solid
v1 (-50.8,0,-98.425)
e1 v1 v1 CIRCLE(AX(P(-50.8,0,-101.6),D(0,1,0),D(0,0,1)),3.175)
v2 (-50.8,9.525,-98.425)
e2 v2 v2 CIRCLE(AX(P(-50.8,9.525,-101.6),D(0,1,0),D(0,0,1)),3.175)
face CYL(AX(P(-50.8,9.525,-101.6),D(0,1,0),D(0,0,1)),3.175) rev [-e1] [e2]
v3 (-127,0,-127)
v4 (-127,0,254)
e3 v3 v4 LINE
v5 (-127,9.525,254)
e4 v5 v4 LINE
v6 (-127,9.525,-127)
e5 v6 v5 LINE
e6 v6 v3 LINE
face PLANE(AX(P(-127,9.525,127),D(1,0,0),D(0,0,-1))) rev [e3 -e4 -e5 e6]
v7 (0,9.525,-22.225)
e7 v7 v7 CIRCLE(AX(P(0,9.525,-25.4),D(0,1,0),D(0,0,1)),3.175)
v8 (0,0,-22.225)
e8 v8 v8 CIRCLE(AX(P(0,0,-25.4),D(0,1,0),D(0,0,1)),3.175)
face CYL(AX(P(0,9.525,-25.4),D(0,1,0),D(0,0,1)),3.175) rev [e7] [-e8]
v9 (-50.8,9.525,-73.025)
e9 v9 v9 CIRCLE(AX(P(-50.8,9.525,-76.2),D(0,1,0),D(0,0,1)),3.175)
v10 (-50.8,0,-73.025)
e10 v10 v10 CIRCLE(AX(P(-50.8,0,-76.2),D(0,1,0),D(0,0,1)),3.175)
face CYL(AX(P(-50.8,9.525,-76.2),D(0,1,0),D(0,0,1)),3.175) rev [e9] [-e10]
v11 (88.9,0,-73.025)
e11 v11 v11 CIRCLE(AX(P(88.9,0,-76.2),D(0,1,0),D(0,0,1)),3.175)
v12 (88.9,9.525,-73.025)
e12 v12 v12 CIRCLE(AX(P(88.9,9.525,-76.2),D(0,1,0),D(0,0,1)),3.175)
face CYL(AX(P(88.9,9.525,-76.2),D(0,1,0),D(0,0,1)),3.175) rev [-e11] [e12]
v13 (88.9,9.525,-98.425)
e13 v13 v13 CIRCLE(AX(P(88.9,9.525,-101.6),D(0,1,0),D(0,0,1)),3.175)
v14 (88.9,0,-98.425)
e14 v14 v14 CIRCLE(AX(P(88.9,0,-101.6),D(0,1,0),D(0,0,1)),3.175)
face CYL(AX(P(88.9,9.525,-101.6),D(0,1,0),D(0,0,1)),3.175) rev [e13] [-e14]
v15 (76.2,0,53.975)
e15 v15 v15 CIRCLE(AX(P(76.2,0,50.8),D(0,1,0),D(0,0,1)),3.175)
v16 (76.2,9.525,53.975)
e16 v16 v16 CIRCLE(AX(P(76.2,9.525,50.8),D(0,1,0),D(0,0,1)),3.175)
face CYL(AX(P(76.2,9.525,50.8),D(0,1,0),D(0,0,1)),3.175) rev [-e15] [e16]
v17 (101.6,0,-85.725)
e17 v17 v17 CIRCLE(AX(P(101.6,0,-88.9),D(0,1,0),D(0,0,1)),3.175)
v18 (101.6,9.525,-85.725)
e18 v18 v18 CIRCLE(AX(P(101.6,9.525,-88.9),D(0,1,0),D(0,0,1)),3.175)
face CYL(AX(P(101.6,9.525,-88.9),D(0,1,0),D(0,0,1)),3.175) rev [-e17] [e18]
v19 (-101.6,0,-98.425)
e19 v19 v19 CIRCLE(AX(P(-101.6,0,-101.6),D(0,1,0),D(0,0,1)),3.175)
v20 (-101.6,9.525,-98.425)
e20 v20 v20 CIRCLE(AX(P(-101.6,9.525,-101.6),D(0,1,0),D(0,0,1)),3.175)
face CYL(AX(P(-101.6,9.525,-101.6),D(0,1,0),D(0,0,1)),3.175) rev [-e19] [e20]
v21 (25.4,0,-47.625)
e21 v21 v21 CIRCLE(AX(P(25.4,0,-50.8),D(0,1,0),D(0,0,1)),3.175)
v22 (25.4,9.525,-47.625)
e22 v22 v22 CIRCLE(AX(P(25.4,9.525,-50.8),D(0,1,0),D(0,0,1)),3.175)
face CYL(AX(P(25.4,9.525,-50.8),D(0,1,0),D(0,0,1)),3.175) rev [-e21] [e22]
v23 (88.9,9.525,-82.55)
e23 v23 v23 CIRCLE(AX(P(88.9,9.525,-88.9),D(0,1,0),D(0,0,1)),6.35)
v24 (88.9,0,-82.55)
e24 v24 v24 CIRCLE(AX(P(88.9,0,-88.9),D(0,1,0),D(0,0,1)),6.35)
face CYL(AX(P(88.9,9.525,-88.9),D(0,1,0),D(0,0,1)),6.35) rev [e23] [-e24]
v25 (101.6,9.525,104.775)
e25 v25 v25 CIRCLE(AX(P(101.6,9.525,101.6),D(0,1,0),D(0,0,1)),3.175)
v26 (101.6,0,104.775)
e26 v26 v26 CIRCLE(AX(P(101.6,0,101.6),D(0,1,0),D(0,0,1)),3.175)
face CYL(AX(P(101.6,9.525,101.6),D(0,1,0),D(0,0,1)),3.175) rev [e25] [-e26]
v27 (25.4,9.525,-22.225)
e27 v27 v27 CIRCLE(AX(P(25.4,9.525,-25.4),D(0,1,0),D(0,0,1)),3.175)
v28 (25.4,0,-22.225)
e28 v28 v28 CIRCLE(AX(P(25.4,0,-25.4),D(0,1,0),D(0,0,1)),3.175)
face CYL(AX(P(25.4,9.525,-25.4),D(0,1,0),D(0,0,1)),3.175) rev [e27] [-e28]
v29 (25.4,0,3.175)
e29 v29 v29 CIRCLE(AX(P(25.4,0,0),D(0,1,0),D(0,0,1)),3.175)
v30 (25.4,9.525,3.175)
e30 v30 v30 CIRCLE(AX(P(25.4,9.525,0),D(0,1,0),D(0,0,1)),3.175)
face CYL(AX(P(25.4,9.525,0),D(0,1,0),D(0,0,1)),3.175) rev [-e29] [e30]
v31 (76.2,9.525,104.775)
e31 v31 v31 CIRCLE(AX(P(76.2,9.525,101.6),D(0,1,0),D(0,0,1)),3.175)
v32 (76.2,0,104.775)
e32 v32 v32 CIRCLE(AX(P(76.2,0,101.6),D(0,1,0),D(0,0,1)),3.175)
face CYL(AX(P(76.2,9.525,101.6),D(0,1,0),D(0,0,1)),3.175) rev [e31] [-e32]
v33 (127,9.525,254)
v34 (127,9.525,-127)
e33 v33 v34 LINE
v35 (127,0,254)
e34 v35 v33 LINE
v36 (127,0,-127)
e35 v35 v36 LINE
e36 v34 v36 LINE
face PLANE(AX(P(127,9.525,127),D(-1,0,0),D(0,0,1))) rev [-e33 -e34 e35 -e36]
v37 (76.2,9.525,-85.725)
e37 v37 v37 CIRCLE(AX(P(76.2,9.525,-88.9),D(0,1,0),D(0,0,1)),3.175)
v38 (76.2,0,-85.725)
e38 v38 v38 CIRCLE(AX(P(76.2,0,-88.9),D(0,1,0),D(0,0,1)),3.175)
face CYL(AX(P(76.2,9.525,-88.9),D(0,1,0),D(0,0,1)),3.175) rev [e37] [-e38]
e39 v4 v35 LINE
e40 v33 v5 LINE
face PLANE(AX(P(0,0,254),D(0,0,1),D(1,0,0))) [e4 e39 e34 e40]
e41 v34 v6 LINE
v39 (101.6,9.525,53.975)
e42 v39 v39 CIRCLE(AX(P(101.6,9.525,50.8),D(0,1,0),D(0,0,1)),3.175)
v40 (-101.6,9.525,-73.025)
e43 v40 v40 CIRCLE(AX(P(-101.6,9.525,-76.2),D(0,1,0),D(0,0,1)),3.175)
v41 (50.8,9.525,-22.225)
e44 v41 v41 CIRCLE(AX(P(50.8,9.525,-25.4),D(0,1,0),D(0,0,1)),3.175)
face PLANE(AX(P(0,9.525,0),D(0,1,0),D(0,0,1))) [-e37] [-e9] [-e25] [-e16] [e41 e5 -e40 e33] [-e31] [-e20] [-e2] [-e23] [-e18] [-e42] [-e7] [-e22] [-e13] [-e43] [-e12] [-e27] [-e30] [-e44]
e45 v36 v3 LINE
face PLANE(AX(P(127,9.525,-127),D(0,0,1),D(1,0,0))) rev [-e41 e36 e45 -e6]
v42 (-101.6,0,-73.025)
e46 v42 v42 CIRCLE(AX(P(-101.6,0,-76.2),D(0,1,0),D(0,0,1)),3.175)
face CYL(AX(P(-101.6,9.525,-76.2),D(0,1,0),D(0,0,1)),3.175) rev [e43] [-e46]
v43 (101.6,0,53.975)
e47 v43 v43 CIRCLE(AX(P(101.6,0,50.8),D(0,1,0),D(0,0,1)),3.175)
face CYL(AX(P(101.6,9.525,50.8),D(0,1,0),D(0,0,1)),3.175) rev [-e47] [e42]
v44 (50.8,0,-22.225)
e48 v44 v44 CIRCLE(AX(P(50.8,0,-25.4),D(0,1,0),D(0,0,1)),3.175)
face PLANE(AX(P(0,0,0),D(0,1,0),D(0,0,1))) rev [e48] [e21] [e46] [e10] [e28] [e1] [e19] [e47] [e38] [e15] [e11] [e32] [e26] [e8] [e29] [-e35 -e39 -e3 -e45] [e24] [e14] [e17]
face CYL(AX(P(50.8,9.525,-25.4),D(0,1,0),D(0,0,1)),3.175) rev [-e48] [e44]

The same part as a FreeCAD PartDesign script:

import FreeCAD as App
import Part
import Sketcher
Q = App.Units.Quantity

doc = App.newDocument("Part")
params = doc.addObject("Spreadsheet::Sheet", "Params")
for row, (alias, value) in enumerate([
    ("sketch1_width", "10 in"),
    ("pad1_length", "0.375 in"),
    ("sketch2_diameter", "0.25 in"),
    ("hole_diameter", "0.25 in"),
    ("sketch3_diameter", "0.5 in"),
    ("hole2_diameter", "0.5 in"),
    ("sketch4_width", "10 in"),
    ("sketch4_height", "0.375 in"),
    ("pad2_length", "5 in"),
], start=1):
    params.set(f"A{row}", alias)
    params.set(f"B{row}", "=" + value)
    params.setAlias(f"B{row}", alias)

body = doc.addObject("PartDesign::Body", "Body")

sketch1 = body.newObject("Sketcher::SketchObject", "Sketch")
sketch1.AttachmentSupport = (doc.getObject("XZ_Plane"), [""])
sketch1.MapMode = "FlatFace"
sketch1.addGeometry(Part.LineSegment(App.Vector(-127, -127, 0), App.Vector(-127, 127, 0)), False)
sketch1.addGeometry(Part.LineSegment(App.Vector(-127, 127, 0), App.Vector(127, 127, 0)), False)
sketch1.addGeometry(Part.LineSegment(App.Vector(127, 127, 0), App.Vector(127, -127, 0)), False)
sketch1.addGeometry(Part.LineSegment(App.Vector(127, -127, 0), App.Vector(-127, -127, 0)), False)
sketch1.addConstraint(Sketcher.Constraint("Coincident", 0, 2, 1, 1))
sketch1.addConstraint(Sketcher.Constraint("Coincident", 1, 2, 2, 1))
sketch1.addConstraint(Sketcher.Constraint("Coincident", 2, 2, 3, 1))
sketch1.addConstraint(Sketcher.Constraint("Coincident", 3, 2, 0, 1))
sketch1.addConstraint(Sketcher.Constraint("Vertical", 0))
sketch1.addConstraint(Sketcher.Constraint("Horizontal", 1))
sketch1.addConstraint(Sketcher.Constraint("Vertical", 2))
sketch1.addConstraint(Sketcher.Constraint("Horizontal", 3))
sketch1.addConstraint(Sketcher.Constraint("Symmetric", 0, 2, 2, 2, -1, 1))
sketch1.addConstraint(Sketcher.Constraint("Equal", 3, 0))
sketch1.addConstraint(Sketcher.Constraint("DistanceX", 1, 1, 1, 2, Q("10 in")))
sketch1.setExpression("Constraints[10]", "Params.sketch1_width")
pad1 = body.newObject("PartDesign::Pad", "Pad")
pad1.Profile = sketch1
pad1.setExpression("Length", "Params.pad1_length")
pad1.Reversed = True

sketch2 = body.newObject("Sketcher::SketchObject", "Sketch001")
sketch2.AttachmentSupport = (doc.getObject("XZ_Plane"), [""])
sketch2.MapMode = "FlatFace"
sketch2.AttachmentOffset = App.Placement(App.Vector(0, 0, -0.375 * 25.4), App.Rotation())
sketch2.addGeometry(Part.Circle(App.Vector(-50.8, -76.2, 0), App.Vector(0, 0, 1), 3.2), False)
sketch2.addGeometry(Part.Circle(App.Vector(-50.8, -101.6, 0), App.Vector(0, 0, 1), 3.2), False)
sketch2.addGeometry(Part.Circle(App.Vector(76.2, 50.8, 0), App.Vector(0, 0, 1), 3.2), False)
sketch2.addGeometry(Part.Circle(App.Vector(101.6, 50.8, 0), App.Vector(0, 0, 1), 3.2), False)
sketch2.addGeometry(Part.Circle(App.Vector(76.2, 101.6, 0), App.Vector(0, 0, 1), 3.2), False)
sketch2.addGeometry(Part.Circle(App.Vector(101.6, 101.6, 0), App.Vector(0, 0, 1), 3.2), False)
sketch2.addGeometry(Part.Circle(App.Vector(-101.6, -76.2, 0), App.Vector(0, 0, 1), 3.2), False)
sketch2.addGeometry(Part.Circle(App.Vector(-101.6, -101.6, 0), App.Vector(0, 0, 1), 3.2), False)
sketch2.addGeometry(Part.Circle(App.Vector(25.4, -50.8, 0), App.Vector(0, 0, 1), 3.2), False)
sketch2.addGeometry(Part.Circle(App.Vector(50.8, -25.4, 0), App.Vector(0, 0, 1), 3.2), False)
sketch2.addGeometry(Part.Circle(App.Vector(25.4, 0, 0), App.Vector(0, 0, 1), 3.2), False)
sketch2.addGeometry(Part.Circle(App.Vector(0, -25.4, 0), App.Vector(0, 0, 1), 3.2), False)
sketch2.addGeometry(Part.Circle(App.Vector(25.4, -25.4, 0), App.Vector(0, 0, 1), 3.2), False)
sketch2.addGeometry(Part.Circle(App.Vector(88.9, -76.2, 0), App.Vector(0, 0, 1), 3.2), False)
sketch2.addGeometry(Part.Circle(App.Vector(76.2, -88.9, 0), App.Vector(0, 0, 1), 3.2), False)
sketch2.addGeometry(Part.Circle(App.Vector(88.9, -101.6, 0), App.Vector(0, 0, 1), 3.2), False)
sketch2.addGeometry(Part.Circle(App.Vector(101.6, -88.9, 0), App.Vector(0, 0, 1), 3.2), False)
sketch2.addConstraint(Sketcher.Constraint("Equal", 0, 1))
sketch2.addConstraint(Sketcher.Constraint("Equal", 1, 2))
sketch2.addConstraint(Sketcher.Constraint("Equal", 2, 3))
sketch2.addConstraint(Sketcher.Constraint("Equal", 3, 4))
sketch2.addConstraint(Sketcher.Constraint("Equal", 4, 5))
sketch2.addConstraint(Sketcher.Constraint("Equal", 5, 6))
sketch2.addConstraint(Sketcher.Constraint("Equal", 6, 7))
sketch2.addConstraint(Sketcher.Constraint("Equal", 7, 8))
sketch2.addConstraint(Sketcher.Constraint("Equal", 8, 9))
sketch2.addConstraint(Sketcher.Constraint("Equal", 9, 10))
sketch2.addConstraint(Sketcher.Constraint("Equal", 10, 11))
sketch2.addConstraint(Sketcher.Constraint("Equal", 11, 12))
sketch2.addConstraint(Sketcher.Constraint("Equal", 12, 13))
sketch2.addConstraint(Sketcher.Constraint("Equal", 13, 14))
sketch2.addConstraint(Sketcher.Constraint("Equal", 14, 15))
sketch2.addConstraint(Sketcher.Constraint("Equal", 15, 16))
sketch2.addConstraint(Sketcher.Constraint("Symmetric", 5, 3, 7, 3, -1, 1))
sketch2.addConstraint(Sketcher.Constraint("PointOnObject", 10, 3, -1))
sketch2.addConstraint(Sketcher.Constraint("PointOnObject", 11, 3, -2))
sketch2.addConstraint(Sketcher.Constraint("Horizontal", 2, 3, 3, 3))
sketch2.addConstraint(Sketcher.Constraint("Horizontal", 4, 3, 5, 3))
sketch2.addConstraint(Sketcher.Constraint("Horizontal", 0, 3, 6, 3))
sketch2.addConstraint(Sketcher.Constraint("Horizontal", 1, 3, 7, 3))
sketch2.addConstraint(Sketcher.Constraint("Horizontal", 9, 3, 11, 3))
sketch2.addConstraint(Sketcher.Constraint("Horizontal", 11, 3, 12, 3))
sketch2.addConstraint(Sketcher.Constraint("Horizontal", 6, 3, 13, 3))
sketch2.addConstraint(Sketcher.Constraint("Horizontal", 7, 3, 15, 3))
sketch2.addConstraint(Sketcher.Constraint("Horizontal", 14, 3, 16, 3))
sketch2.addConstraint(Sketcher.Constraint("Vertical", 0, 3, 1, 3))
sketch2.addConstraint(Sketcher.Constraint("Vertical", 2, 3, 4, 3))
sketch2.addConstraint(Sketcher.Constraint("Vertical", 3, 3, 5, 3))
sketch2.addConstraint(Sketcher.Constraint("Vertical", 6, 3, 7, 3))
sketch2.addConstraint(Sketcher.Constraint("Vertical", 8, 3, 10, 3))
sketch2.addConstraint(Sketcher.Constraint("Vertical", 10, 3, 12, 3))
sketch2.addConstraint(Sketcher.Constraint("Vertical", 4, 3, 14, 3))
sketch2.addConstraint(Sketcher.Constraint("Vertical", 13, 3, 15, 3))
sketch2.addConstraint(Sketcher.Constraint("Vertical", 5, 3, 16, 3))
sketch2.addConstraint(Sketcher.Constraint("Diameter", 0, Q("0.25 in")))
sketch2.addConstraint(Sketcher.Constraint("DistanceX", 0, 3, -1, 1, Q("2 in")))
sketch2.addConstraint(Sketcher.Constraint("DistanceY", 0, 3, -1, 1, Q("3 in")))
sketch2.addConstraint(Sketcher.Constraint("DistanceY", 1, 3, -1, 1, Q("4 in")))
sketch2.addConstraint(Sketcher.Constraint("DistanceX", -1, 1, 2, 3, Q("3 in")))
sketch2.addConstraint(Sketcher.Constraint("DistanceY", -1, 1, 2, 3, Q("2 in")))
sketch2.addConstraint(Sketcher.Constraint("DistanceX", -1, 1, 3, 3, Q("4 in")))
sketch2.addConstraint(Sketcher.Constraint("DistanceX", -1, 1, 8, 3, Q("1 in")))
sketch2.addConstraint(Sketcher.Constraint("DistanceY", 8, 3, -1, 1, Q("2 in")))
sketch2.addConstraint(Sketcher.Constraint("DistanceX", -1, 1, 9, 3, Q("2 in")))
sketch2.addConstraint(Sketcher.Constraint("DistanceY", 9, 3, -1, 1, Q("1 in")))
sketch2.addConstraint(Sketcher.Constraint("DistanceX", -1, 1, 13, 3, Q("3.5 in")))
sketch2.addConstraint(Sketcher.Constraint("DistanceY", 14, 3, -1, 1, Q("3.5 in")))
sketch2.setExpression("Constraints[37]", "Params.sketch2_diameter")
doc.recompute()
hole = body.newObject("PartDesign::Hole", "Hole")
hole.Profile = sketch2
hole.ThreadType = "None"
hole.setExpression("Diameter", "Params.hole_diameter")
hole.DepthType = "ThroughAll"
hole.Reversed = True

sketch3 = body.newObject("Sketcher::SketchObject", "Sketch002")
sketch3.AttachmentSupport = (doc.getObject("XZ_Plane"), [""])
sketch3.MapMode = "FlatFace"
sketch3.AttachmentOffset = App.Placement(App.Vector(0, 0, -0.375 * 25.4), App.Rotation())
sketch3.addGeometry(Part.Circle(App.Vector(89, -89, 0), App.Vector(0, 0, 1), 6), False)
sketch3.addConstraint(Sketcher.Constraint("Diameter", 0, Q("0.5 in")))
sketch3.addConstraint(Sketcher.Constraint("DistanceX", -1, 1, 0, 3, Q("3.5 in")))
sketch3.addConstraint(Sketcher.Constraint("DistanceY", 0, 3, -1, 1, Q("3.5 in")))
sketch3.setExpression("Constraints[0]", "Params.sketch3_diameter")
doc.recompute()
hole2 = body.newObject("PartDesign::Hole", "Hole001")
hole2.Profile = sketch3
hole2.ThreadType = "None"
hole2.setExpression("Diameter", "Params.hole2_diameter")
hole2.DepthType = "ThroughAll"
hole2.Reversed = True

sketch4 = body.newObject("Sketcher::SketchObject", "Sketch003")
sketch4.AttachmentSupport = (doc.getObject("XY_Plane"), [""])
sketch4.MapMode = "FlatFace"
sketch4.AttachmentOffset = App.Placement(App.Vector(0, 0, 5 * 25.4), App.Rotation())
sketch4.addGeometry(Part.LineSegment(App.Vector(-127, 10, 0), App.Vector(-127, 0, 0)), False)
sketch4.addGeometry(Part.LineSegment(App.Vector(-127, 0, 0), App.Vector(127, 0, 0)), False)
sketch4.addGeometry(Part.LineSegment(App.Vector(127, 0, 0), App.Vector(127, 10, 0)), False)
sketch4.addGeometry(Part.LineSegment(App.Vector(127, 10, 0), App.Vector(-127, 10, 0)), False)
sketch4.addConstraint(Sketcher.Constraint("Coincident", 0, 2, 1, 1))
sketch4.addConstraint(Sketcher.Constraint("Coincident", 1, 2, 2, 1))
sketch4.addConstraint(Sketcher.Constraint("Coincident", 2, 2, 3, 1))
sketch4.addConstraint(Sketcher.Constraint("Coincident", 3, 2, 0, 1))
sketch4.addConstraint(Sketcher.Constraint("Vertical", 0))
sketch4.addConstraint(Sketcher.Constraint("Horizontal", 1))
sketch4.addConstraint(Sketcher.Constraint("Vertical", 2))
sketch4.addConstraint(Sketcher.Constraint("Horizontal", 3))
sketch4.addConstraint(Sketcher.Constraint("Symmetric", 0, 2, 1, 2, -1, 1))
sketch4.addConstraint(Sketcher.Constraint("DistanceX", 1, 1, 1, 2, Q("10 in")))
sketch4.addConstraint(Sketcher.Constraint("DistanceY", 0, 2, 0, 1, Q("0.375 in")))
sketch4.setExpression("Constraints[9]", "Params.sketch4_width")
sketch4.setExpression("Constraints[10]", "Params.sketch4_height")
pad2 = body.newObject("PartDesign::Pad", "Pad001")
pad2.Profile = sketch4
pad2.setExpression("Length", "Params.pad2_length")

doc.recompute()
